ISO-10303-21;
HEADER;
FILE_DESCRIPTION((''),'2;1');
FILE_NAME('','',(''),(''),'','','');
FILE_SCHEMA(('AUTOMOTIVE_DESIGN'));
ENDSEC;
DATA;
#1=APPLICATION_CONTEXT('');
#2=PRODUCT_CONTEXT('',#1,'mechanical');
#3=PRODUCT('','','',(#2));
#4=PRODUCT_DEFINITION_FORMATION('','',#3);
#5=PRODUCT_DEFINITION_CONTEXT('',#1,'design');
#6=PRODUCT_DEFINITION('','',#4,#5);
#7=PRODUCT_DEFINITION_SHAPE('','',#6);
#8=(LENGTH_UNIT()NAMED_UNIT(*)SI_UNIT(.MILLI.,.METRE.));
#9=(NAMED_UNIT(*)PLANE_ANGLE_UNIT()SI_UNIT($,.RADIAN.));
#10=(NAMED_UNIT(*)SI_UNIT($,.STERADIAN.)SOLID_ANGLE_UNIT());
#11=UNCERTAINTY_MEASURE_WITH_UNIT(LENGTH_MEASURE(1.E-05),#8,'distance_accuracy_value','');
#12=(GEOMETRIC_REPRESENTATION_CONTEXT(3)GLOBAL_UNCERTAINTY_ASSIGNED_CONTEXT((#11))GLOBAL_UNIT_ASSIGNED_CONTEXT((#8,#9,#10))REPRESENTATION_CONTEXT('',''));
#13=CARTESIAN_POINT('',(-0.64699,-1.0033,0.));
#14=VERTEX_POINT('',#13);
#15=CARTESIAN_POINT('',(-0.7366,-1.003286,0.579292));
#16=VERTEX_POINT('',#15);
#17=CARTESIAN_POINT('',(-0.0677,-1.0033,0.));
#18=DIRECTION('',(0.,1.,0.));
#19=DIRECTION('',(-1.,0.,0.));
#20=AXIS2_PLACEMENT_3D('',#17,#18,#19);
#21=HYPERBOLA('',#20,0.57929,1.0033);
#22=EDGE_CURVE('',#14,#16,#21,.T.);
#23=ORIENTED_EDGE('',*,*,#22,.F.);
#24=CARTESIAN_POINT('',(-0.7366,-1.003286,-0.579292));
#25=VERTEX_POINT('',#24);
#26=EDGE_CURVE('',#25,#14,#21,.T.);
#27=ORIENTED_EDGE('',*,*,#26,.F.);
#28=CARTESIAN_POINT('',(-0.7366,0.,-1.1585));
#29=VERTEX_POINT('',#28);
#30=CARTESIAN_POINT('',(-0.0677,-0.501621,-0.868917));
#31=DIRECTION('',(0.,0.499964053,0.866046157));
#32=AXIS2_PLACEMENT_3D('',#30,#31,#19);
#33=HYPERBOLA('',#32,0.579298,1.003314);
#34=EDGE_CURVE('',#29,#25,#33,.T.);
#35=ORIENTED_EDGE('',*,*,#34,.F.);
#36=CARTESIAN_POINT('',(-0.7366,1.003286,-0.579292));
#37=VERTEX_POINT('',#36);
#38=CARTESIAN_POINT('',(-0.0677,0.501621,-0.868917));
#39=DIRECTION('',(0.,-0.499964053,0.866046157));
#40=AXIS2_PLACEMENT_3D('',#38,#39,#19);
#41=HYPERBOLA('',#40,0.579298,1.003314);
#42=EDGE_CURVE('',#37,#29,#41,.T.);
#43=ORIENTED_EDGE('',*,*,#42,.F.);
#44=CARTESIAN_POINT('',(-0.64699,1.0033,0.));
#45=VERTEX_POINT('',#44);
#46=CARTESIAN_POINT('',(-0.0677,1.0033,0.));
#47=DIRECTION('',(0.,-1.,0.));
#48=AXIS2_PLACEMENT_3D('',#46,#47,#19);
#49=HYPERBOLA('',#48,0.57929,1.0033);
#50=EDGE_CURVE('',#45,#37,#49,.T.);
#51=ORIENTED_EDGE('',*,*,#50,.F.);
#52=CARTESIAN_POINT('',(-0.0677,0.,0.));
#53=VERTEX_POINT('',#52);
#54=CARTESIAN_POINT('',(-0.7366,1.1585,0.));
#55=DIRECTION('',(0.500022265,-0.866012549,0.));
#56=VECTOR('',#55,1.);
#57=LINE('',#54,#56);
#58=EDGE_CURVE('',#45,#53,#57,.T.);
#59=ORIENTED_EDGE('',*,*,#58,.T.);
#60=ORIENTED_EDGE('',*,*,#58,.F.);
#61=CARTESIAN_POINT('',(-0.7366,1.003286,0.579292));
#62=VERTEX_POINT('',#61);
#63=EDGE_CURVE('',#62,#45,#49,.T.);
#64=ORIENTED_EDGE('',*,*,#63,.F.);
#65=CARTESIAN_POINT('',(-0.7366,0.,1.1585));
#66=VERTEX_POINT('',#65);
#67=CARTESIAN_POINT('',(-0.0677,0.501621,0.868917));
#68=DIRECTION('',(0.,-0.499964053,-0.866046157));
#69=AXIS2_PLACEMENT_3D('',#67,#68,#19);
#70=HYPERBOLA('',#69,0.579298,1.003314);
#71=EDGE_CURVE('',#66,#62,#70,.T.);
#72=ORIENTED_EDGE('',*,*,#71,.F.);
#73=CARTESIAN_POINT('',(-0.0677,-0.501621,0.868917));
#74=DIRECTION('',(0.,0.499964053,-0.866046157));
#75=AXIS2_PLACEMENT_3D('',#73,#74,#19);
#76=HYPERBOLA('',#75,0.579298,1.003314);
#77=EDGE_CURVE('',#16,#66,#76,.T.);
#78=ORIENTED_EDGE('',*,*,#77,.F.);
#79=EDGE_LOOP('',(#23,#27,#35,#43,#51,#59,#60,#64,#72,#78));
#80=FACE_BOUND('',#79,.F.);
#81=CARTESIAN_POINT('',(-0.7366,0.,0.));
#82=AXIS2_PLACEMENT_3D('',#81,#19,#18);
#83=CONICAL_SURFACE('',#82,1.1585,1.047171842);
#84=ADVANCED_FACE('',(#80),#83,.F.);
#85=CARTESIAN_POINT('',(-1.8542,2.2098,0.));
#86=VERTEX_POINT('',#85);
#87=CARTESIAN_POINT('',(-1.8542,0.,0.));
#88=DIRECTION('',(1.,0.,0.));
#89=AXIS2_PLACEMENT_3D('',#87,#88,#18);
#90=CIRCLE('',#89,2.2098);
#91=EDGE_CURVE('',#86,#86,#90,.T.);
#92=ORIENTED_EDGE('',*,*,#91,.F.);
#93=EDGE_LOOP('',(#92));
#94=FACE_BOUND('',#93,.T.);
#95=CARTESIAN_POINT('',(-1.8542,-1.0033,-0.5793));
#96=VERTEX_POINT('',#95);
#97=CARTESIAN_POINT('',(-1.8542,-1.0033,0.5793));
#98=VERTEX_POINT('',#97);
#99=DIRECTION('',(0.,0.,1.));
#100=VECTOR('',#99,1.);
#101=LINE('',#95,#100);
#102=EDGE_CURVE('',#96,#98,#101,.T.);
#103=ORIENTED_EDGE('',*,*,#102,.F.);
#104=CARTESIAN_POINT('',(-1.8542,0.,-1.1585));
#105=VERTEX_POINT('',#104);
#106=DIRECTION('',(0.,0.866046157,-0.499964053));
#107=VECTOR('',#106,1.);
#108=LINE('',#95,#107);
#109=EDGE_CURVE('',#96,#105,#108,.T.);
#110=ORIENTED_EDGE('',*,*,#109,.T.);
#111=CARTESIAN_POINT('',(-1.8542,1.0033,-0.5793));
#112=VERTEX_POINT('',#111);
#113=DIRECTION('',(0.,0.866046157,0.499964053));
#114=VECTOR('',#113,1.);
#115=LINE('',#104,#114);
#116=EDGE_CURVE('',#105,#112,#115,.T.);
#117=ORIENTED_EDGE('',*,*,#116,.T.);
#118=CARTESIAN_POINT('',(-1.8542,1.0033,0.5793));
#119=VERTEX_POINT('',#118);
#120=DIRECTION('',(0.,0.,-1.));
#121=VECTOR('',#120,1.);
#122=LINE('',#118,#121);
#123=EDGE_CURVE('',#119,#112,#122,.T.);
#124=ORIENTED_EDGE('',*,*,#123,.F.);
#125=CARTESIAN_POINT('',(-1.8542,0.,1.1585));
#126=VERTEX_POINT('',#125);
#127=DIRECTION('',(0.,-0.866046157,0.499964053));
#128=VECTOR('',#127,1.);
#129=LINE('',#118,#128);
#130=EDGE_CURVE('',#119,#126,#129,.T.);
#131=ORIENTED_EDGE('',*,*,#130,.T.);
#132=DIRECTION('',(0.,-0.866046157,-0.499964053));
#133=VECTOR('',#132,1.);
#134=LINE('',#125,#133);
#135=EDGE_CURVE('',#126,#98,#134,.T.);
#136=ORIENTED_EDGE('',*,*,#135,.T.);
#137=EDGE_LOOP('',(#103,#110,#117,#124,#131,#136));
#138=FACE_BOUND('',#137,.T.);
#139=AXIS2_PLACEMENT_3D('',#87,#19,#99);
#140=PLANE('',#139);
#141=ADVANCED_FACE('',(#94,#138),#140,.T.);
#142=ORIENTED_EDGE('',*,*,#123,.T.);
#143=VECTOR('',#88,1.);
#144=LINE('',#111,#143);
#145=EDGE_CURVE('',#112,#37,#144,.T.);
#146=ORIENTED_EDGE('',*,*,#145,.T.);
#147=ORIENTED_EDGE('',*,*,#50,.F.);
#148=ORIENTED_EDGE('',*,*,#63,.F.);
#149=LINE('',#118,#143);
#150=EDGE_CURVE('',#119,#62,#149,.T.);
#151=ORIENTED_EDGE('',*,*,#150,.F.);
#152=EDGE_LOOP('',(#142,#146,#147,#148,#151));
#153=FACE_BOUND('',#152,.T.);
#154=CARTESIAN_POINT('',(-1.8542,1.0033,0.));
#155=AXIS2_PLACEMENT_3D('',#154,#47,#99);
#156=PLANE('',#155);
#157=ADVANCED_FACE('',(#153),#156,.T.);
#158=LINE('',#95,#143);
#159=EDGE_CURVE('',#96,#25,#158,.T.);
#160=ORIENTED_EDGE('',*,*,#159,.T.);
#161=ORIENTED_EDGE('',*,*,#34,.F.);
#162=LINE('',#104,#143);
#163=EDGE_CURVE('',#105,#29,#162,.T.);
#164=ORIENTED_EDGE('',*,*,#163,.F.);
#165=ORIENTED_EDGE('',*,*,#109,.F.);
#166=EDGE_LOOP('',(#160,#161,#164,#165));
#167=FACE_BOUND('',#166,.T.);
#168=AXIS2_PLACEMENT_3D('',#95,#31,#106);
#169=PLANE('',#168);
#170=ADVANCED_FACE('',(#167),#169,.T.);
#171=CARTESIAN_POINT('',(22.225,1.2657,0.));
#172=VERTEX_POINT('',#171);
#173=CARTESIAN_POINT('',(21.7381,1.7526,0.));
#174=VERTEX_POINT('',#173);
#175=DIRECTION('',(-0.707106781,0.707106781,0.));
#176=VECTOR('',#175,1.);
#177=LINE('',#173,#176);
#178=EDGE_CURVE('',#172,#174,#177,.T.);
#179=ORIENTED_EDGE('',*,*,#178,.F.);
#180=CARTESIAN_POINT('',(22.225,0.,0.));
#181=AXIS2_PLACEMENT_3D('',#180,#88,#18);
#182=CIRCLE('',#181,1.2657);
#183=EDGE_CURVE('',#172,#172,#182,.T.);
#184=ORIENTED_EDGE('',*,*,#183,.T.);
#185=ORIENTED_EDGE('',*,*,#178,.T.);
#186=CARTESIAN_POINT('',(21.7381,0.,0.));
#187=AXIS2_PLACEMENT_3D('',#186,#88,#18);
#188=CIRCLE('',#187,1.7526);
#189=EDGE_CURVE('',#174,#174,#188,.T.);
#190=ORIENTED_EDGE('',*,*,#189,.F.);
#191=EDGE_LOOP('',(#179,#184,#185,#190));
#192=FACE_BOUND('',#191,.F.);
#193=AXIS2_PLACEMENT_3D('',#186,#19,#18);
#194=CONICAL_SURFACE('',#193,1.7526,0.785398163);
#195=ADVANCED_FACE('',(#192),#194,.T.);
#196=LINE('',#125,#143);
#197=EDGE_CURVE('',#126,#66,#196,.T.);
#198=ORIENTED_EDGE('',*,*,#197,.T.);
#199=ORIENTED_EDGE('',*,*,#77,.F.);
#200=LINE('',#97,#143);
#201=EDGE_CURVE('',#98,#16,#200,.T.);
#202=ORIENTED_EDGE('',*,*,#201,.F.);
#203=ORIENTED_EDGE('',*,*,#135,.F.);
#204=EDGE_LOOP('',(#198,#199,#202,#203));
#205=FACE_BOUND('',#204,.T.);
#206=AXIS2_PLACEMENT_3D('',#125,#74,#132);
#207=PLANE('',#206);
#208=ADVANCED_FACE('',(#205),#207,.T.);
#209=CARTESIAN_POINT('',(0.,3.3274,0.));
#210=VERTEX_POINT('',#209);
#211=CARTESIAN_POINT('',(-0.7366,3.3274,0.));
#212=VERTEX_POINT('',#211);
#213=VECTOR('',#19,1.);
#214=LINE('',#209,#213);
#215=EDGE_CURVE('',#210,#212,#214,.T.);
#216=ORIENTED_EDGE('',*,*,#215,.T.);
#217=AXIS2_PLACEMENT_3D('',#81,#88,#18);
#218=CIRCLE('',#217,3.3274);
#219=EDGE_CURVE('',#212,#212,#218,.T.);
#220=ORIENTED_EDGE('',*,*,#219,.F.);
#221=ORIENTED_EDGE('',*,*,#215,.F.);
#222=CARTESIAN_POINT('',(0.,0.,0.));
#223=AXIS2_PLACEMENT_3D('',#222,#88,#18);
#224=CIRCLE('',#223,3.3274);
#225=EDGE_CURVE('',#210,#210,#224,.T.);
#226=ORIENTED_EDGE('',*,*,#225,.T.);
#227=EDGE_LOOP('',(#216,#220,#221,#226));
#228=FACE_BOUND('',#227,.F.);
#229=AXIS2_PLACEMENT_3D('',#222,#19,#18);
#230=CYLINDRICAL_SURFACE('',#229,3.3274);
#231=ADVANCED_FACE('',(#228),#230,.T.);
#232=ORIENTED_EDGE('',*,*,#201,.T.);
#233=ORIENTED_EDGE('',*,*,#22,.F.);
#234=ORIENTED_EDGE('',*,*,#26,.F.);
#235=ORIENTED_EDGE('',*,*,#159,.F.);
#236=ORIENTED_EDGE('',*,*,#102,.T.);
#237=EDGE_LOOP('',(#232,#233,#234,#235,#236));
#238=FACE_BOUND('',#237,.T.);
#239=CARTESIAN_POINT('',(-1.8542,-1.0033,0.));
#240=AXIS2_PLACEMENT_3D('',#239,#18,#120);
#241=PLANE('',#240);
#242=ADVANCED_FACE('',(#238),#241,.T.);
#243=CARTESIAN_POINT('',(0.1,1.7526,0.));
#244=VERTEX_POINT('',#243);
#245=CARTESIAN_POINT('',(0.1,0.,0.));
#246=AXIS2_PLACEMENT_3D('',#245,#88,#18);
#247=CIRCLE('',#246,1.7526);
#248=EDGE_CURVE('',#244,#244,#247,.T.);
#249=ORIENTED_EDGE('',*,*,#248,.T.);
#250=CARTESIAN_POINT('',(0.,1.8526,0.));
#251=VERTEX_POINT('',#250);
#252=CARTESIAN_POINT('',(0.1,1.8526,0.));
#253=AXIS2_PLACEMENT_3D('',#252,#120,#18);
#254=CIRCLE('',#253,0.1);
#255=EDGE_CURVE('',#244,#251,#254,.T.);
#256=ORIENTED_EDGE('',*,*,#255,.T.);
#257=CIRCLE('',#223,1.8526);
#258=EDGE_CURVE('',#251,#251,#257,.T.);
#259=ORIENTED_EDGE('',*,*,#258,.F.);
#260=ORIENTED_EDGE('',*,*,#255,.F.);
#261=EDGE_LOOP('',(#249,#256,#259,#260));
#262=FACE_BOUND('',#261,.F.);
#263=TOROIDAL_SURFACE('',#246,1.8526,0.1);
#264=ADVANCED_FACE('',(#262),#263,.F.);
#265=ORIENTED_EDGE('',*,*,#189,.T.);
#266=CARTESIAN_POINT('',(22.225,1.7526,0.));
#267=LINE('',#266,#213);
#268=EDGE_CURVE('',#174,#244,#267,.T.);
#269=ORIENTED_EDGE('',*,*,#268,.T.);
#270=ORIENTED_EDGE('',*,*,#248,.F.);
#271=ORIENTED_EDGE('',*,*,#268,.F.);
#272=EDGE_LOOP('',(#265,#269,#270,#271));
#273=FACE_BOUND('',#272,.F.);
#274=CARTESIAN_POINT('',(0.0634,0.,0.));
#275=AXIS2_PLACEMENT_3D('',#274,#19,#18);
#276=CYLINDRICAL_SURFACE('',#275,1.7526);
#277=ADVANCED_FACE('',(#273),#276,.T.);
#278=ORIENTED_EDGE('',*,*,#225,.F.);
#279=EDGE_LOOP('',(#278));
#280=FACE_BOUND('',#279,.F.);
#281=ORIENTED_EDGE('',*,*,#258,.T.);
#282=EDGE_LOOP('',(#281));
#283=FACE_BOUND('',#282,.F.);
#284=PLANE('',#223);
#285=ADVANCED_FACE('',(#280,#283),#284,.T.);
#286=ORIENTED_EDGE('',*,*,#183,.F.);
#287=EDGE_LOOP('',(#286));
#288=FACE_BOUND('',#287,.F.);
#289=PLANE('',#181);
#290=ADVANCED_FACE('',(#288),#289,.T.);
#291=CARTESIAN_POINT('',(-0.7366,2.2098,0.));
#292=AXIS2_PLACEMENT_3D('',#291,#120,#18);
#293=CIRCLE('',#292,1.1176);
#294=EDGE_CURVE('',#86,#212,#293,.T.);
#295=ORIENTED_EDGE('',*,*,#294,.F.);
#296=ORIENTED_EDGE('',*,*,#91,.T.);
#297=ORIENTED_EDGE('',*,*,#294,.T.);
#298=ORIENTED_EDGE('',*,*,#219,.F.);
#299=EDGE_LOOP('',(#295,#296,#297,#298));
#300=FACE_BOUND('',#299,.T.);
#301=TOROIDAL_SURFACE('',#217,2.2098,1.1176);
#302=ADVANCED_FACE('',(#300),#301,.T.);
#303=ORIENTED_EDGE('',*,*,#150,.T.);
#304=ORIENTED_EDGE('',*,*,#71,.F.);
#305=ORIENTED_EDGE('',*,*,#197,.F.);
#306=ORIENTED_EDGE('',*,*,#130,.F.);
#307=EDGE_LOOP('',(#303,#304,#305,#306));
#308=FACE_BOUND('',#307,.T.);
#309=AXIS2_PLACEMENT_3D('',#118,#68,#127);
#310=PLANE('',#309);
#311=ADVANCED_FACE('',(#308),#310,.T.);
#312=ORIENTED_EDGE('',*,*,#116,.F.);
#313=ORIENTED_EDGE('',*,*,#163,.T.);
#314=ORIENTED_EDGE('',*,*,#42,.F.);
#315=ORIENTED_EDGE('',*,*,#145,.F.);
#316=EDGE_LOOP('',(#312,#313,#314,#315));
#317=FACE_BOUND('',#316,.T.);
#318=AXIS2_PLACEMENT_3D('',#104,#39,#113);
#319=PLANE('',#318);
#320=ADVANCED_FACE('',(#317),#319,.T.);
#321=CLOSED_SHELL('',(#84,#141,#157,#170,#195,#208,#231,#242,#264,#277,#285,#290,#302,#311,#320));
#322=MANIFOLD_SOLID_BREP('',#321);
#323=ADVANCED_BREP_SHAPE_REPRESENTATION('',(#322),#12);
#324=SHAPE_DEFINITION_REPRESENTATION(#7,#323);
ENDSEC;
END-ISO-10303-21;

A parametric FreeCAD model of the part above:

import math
import FreeCAD as App
import Part
import Sketcher

V = App.Vector
Q = App.Units.Quantity


def edges_at(feature, points):
    """Names of the edges that pass closest to the given points."""
    edges = feature.Shape.Edges
    near = lambda p: min(range(len(edges)), key=lambda i: edges[i].distToShape(Part.Vertex(*p))[0])
    return sorted({f"Edge{near(p) + 1}" for p in points})


def add_polygon(sketch, points):
    """Adds a closed chain of lines whose ends are joined by coincident constraints."""
    first, n = sketch.GeometryCount, len(points)
    for a, b in zip(points, points[1:] + points[:1]):
        sketch.addGeometry(Part.LineSegment(App.Vector(*a, 0), App.Vector(*b, 0)), False)
    for i in range(n):
        sketch.addConstraint(Sketcher.Constraint("Coincident", first + i, 2, first + (i + 1) % n, 1))

doc = App.newDocument("Part")
body = doc.addObject("PartDesign::Body", "Body")

# Sketch on XY plane
sketch1 = body.newObject("Sketcher::SketchObject", "Sketch")
sketch1.AttachmentSupport = (doc.getObject("XY_Plane"), [""])
sketch1.MapMode = "FlatFace"
add_polygon(sketch1, [(-0.7366, 1.1585), (-0.0677, 0), (22.225, 0), (22.225, 1.7526), (0, 1.7526), (0, 3.3274), (-1.8542, 3.3274), (-1.8542, 1.1585)])  # lines 0-7
sketch1.addConstraint([
    Sketcher.Constraint("Horizontal", 1),
    Sketcher.Constraint("Vertical", 2),
    Sketcher.Constraint("Horizontal", 3),
    Sketcher.Constraint("Vertical", 4),
    Sketcher.Constraint("Horizontal", 5),
    Sketcher.Constraint("Vertical", 6),
    Sketcher.Constraint("Horizontal", 7),
    Sketcher.Constraint("PointOnObject", 0, 2, -1),
    Sketcher.Constraint("PointOnObject", 3, 2, -2),
    Sketcher.Constraint("DistanceX", 3, 2, 3, 1, Q("0.875 in")),
    Sketcher.Constraint("DistanceX", 5, 2, 5, 1, Q("0.073 in")),
    Sketcher.Constraint("DistanceX", 7, 1, 7, 2, Q("0.044 in")),
    Sketcher.Constraint("DistanceY", 2, 1, 2, 2, Q("0.069 in")),
    Sketcher.Constraint("DistanceY", 4, 1, 4, 2, Q("0.062 in")),
    Sketcher.Constraint("DistanceY", 6, 2, 6, 1, Q("0.0854 in")),
    Sketcher.Constraint("DistanceX", 1, 1, 1, 2, Q("22.2927 mm")),
])
revolution = body.newObject("PartDesign::Revolution", "Revolution")
revolution.Profile = sketch1
revolution.ReferenceAxis = (sketch1, ["H_Axis"])
revolution.Angle = 360

# Sketch on YZ plane
sketch2 = body.newObject("Sketcher::SketchObject", "Sketch001")
sketch2.AttachmentSupport = (doc.getObject("YZ_Plane"), [""])
sketch2.MapMode = "FlatFace"
sketch2.AttachmentOffset = App.Placement(V(0, 0, -0.073 * 25.4), App.Rotation())
sketch2.addGeometry([
    Part.LineSegment(V(1.0033, 0.5793, 0), V(0, 1.1585, 0)),  # 0
    Part.ArcOfCircle(Part.Circle(V(0, 0, 0), V(0, 0, 1), 1.1585), math.radians(30.001905), math.radians(90)),  # 1
    Part.ArcOfCircle(Part.Circle(V(0, 0, 0), V(0, 0, 1), 1.1585), math.radians(90), math.radians(149.998095)),  # 2
    Part.LineSegment(V(0, 1.1585, 0), V(-1.0033, 0.5793, 0)),  # 3
    Part.ArcOfCircle(Part.Circle(V(0, 0, 0), V(0, 0, 1), 1.1585), math.radians(-30.001905), math.radians(30.001905)),  # 4
    Part.LineSegment(V(1.0033, 0.5793, 0), V(1.0033, -0.5793, 0)),  # 5
    Part.LineSegment(V(-1.0033, 0.5793, 0), V(-1.0033, -0.5793, 0)),  # 6
    Part.ArcOfCircle(Part.Circle(V(0, 0, 0), V(0, 0, 1), 1.1585), math.radians(149.998095), math.radians(210.001905)),  # 7
    Part.LineSegment(V(-1.0033, -0.5793, 0), V(0, -1.1585, 0)),  # 8
    Part.ArcOfCircle(Part.Circle(V(0, 0, 0), V(0, 0, 1), 1.1585), math.radians(-149.998095), math.radians(-90)),  # 9
    Part.ArcOfCircle(Part.Circle(V(0, 0, 0), V(0, 0, 1), 1.1585), math.radians(-90), math.radians(-30.001905)),  # 10
    Part.LineSegment(V(0, -1.1585, 0), V(1.0033, -0.5793, 0)),  # 11
], False)
sketch2.addConstraint([
    Sketcher.Constraint("Coincident", 0, 1, 1, 1),
    Sketcher.Constraint("Coincident", 1, 2, 0, 2),
    Sketcher.Constraint("Coincident", 2, 1, 3, 1),
    Sketcher.Constraint("Coincident", 3, 2, 2, 2),
    Sketcher.Constraint("Coincident", 4, 1, 5, 2),
    Sketcher.Constraint("Coincident", 5, 1, 4, 2),
    Sketcher.Constraint("Coincident", 6, 1, 7, 1),
    Sketcher.Constraint("Coincident", 7, 2, 6, 2),
    Sketcher.Constraint("Coincident", 8, 1, 9, 1),
    Sketcher.Constraint("Coincident", 9, 2, 8, 2),
    Sketcher.Constraint("Coincident", 10, 1, 11, 1),
    Sketcher.Constraint("Coincident", 11, 2, 10, 2),
    Sketcher.Constraint("Vertical", 5),
    Sketcher.Constraint("Vertical", 6),
    Sketcher.Constraint("Coincident", 1, 3, -1, 1),
    Sketcher.Constraint("Coincident", 2, 3, -1, 1),
    Sketcher.Constraint("Coincident", 4, 3, -1, 1),
    Sketcher.Constraint("Coincident", 7, 3, -1, 1),
    Sketcher.Constraint("Coincident", 9, 3, -1, 1),
    Sketcher.Constraint("Coincident", 10, 3, -1, 1),
    Sketcher.Constraint("Coincident", 2, 1, 1, 2),
    Sketcher.Constraint("Coincident", 5, 1, 0, 1),
    Sketcher.Constraint("Coincident", 6, 1, 3, 2),
    Sketcher.Constraint("Coincident", 8, 1, 7, 2),
    Sketcher.Constraint("Coincident", 10, 1, 9, 2),
    Sketcher.Constraint("PointOnObject", 1, 2, -2),
    Sketcher.Constraint("PointOnObject", 9, 2, -2),
    Sketcher.Constraint("Parallel", 0, 8),
    Sketcher.Constraint("Parallel", 3, 11),
    Sketcher.Constraint("Radius", 1, Q("0.0456 in")),
    Sketcher.Constraint("Distance", 0, Q("0.0456 in")),
])
pad1 = body.newObject("PartDesign::Pad", "Pad")
pad1.Profile = sketch2
pad1.Type = "UpToFirst"
doc.recompute()

fillet = body.newObject("PartDesign::Fillet", "Fillet")
fillet.Base = (pad1, edges_at(pad1, [(-1.854, -3.327, 0)]))
fillet.Radius = Q("0.044 in")
doc.recompute()

chamfer = body.newObject("PartDesign::Chamfer", "Chamfer")
chamfer.Base = (fillet, edges_at(fillet, [(22.225, -1.753, 0)]))
chamfer.ChamferType = "Two distances"
chamfer.Size = 0.4869
chamfer.Size2 = 0.4869
doc.recompute()

fillet2 = body.newObject("PartDesign::Fillet", "Fillet001")
fillet2.Base = (chamfer, edges_at(chamfer, [(0, -1.753, 0)]))
fillet2.Radius = 0.1

doc.recompute()
